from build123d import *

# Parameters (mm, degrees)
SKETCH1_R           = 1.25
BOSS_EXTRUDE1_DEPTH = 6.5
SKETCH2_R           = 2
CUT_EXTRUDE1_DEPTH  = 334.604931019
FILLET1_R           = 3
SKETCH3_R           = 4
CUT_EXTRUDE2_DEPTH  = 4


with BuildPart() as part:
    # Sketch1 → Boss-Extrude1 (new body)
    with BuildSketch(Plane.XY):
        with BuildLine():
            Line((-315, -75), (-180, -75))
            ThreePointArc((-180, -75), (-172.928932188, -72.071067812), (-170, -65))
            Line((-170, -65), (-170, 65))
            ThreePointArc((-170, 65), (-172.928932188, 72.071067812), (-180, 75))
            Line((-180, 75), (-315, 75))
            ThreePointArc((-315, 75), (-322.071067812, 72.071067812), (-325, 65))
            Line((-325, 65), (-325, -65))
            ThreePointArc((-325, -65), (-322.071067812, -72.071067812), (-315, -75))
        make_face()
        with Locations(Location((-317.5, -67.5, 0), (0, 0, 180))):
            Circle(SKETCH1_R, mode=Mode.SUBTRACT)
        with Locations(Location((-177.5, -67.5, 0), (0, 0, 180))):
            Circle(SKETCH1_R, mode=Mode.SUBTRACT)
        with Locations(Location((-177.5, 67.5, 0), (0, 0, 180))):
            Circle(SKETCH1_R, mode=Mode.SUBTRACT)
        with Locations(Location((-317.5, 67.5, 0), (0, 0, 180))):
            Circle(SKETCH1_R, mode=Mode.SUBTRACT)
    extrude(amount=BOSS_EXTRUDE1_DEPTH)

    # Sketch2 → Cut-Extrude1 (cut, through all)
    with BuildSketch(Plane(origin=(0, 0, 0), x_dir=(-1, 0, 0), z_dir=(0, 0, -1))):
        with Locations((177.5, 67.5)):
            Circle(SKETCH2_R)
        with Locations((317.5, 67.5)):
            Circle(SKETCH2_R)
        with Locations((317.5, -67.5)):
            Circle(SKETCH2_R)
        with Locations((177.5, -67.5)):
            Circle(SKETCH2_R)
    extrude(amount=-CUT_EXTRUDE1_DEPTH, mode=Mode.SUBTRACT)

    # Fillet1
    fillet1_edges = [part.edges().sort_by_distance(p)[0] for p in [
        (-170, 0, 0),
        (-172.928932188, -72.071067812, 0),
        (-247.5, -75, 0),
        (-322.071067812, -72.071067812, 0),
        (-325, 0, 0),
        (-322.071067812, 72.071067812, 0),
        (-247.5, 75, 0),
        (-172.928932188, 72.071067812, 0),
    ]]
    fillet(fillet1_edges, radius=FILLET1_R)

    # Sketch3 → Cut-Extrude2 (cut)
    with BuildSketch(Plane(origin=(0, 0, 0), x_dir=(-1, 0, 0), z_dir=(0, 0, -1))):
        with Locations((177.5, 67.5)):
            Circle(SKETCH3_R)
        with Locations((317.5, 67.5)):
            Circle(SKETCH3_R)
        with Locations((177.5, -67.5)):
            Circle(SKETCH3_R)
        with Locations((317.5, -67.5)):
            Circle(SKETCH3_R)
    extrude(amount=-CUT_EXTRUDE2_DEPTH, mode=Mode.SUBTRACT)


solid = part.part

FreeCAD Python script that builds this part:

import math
import FreeCAD as App
import Part
import Sketcher

V = App.Vector
Q = App.Units.Quantity


def edges_at(feature, points):
    """Names of the edges that pass closest to the given points."""
    edges = feature.Shape.Edges
    near = lambda p: min(range(len(edges)), key=lambda i: edges[i].distToShape(Part.Vertex(*p))[0])
    return sorted({f"Edge{near(p) + 1}" for p in points})

doc = App.newDocument("Part")
body = doc.addObject("PartDesign::Body", "Body")

# Sketch on XY plane
sketch1 = body.newObject("Sketcher::SketchObject", "Sketch")
sketch1.AttachmentSupport = (doc.getObject("XY_Plane"), [""])
sketch1.MapMode = "FlatFace"
sketch1.addGeometry(Part.LineSegment(V(-315, -75, 0), V(-180, -75, 0)), False)
sketch1.addGeometry(Part.ArcOfCircle(Part.Circle(V(-180, -65, 0), V(0, 0, 1), 10), math.radians(-90), math.radians(0)), False)
sketch1.addGeometry(Part.LineSegment(V(-170, -65, 0), V(-170, 65, 0)), False)
sketch1.addGeometry(Part.ArcOfCircle(Part.Circle(V(-180, 65, 0), V(0, 0, 1), 10), math.radians(0), math.radians(90)), False)
sketch1.addGeometry(Part.LineSegment(V(-180, 75, 0), V(-315, 75, 0)), False)
sketch1.addGeometry(Part.ArcOfCircle(Part.Circle(V(-315, 65, 0), V(0, 0, 1), 10), math.radians(90), math.radians(180)), False)
sketch1.addGeometry(Part.LineSegment(V(-325, 65, 0), V(-325, -65, 0)), False)
sketch1.addGeometry(Part.ArcOfCircle(Part.Circle(V(-315, -65, 0), V(0, 0, 1), 10), math.radians(180), math.radians(270)), False)
sketch1.addGeometry(Part.Circle(V(-317.5, -67.5, 0), V(0, 0, 1), 1.2), False)
sketch1.addGeometry(Part.Circle(V(-177.5, -67.5, 0), V(0, 0, 1), 1.2), False)
sketch1.addGeometry(Part.Circle(V(-317.5, 67.5, 0), V(0, 0, 1), 1.2), False)
sketch1.addGeometry(Part.Circle(V(-177.5, 67.5, 0), V(0, 0, 1), 1.2), False)
sketch1.addConstraint(Sketcher.Constraint("Tangent", 0, 2, 1, 1))
sketch1.addConstraint(Sketcher.Constraint("Tangent", 1, 2, 2, 1))
sketch1.addConstraint(Sketcher.Constraint("Tangent", 2, 2, 3, 1))
sketch1.addConstraint(Sketcher.Constraint("Tangent", 3, 2, 4, 1))
sketch1.addConstraint(Sketcher.Constraint("Tangent", 4, 2, 5, 1))
sketch1.addConstraint(Sketcher.Constraint("Tangent", 5, 2, 6, 1))
sketch1.addConstraint(Sketcher.Constraint("Tangent", 6, 2, 7, 1))
sketch1.addConstraint(Sketcher.Constraint("Tangent", 7, 2, 0, 1))
sketch1.addConstraint(Sketcher.Constraint("Horizontal", 0))
sketch1.addConstraint(Sketcher.Constraint("Vertical", 2))
sketch1.addConstraint(Sketcher.Constraint("Horizontal", 4))
sketch1.addConstraint(Sketcher.Constraint("Vertical", 6))
sketch1.addConstraint(Sketcher.Constraint("Equal", 1, 3))
sketch1.addConstraint(Sketcher.Constraint("Equal", 3, 5))
sketch1.addConstraint(Sketcher.Constraint("Equal", 5, 7))
sketch1.addConstraint(Sketcher.Constraint("Equal", 8, 9))
sketch1.addConstraint(Sketcher.Constraint("Equal", 9, 10))
sketch1.addConstraint(Sketcher.Constraint("Equal", 10, 11))
sketch1.addConstraint(Sketcher.Constraint("Symmetric", 8, 3, 10, 3, -1))
sketch1.addConstraint(Sketcher.Constraint("Symmetric", 9, 3, 11, 3, -1))
sketch1.addConstraint(Sketcher.Constraint("Horizontal", 8, 3, 9, 3))
sketch1.addConstraint(Sketcher.Constraint("Radius", 1, Q("10 mm")))
sketch1.addConstraint(Sketcher.Constraint("Diameter", 8, Q("2.5 mm")))
sketch1.addConstraint(Sketcher.Constraint("DistanceX", 0, 1, 0, 2, Q("135 mm")))
sketch1.addConstraint(Sketcher.Constraint("DistanceY", 2, 1, 2, 2, Q("130 mm")))
sketch1.addConstraint(Sketcher.Constraint("DistanceX", 1, 3, -1, 1, Q("180 mm")))
sketch1.addConstraint(Sketcher.Constraint("DistanceY", 1, 3, -1, 1, Q("65 mm")))
sketch1.addConstraint(Sketcher.Constraint("DistanceX", 8, 3, 9, 3, Q("140 mm")))
sketch1.addConstraint(Sketcher.Constraint("DistanceY", 8, 3, 10, 3, Q("135 mm")))
sketch1.addConstraint(Sketcher.Constraint("DistanceX", 8, 3, -1, 1, Q("317.5 mm")))
pad1 = body.newObject("PartDesign::Pad", "Pad")
pad1.Profile = sketch1
pad1.Length = 6.5

# Sketch on XY plane
sketch2 = body.newObject("Sketcher::SketchObject", "Sketch001")
sketch2.AttachmentSupport = (doc.getObject("XY_Plane"), [""])
sketch2.MapMode = "FlatFace"
sketch2.addGeometry(Part.Circle(V(-177.5, 67.5, 0), V(0, 0, 1), 2), False)
sketch2.addGeometry(Part.Circle(V(-317.5, 67.5, 0), V(0, 0, 1), 2), False)
sketch2.addGeometry(Part.Circle(V(-317.5, -67.5, 0), V(0, 0, 1), 2), False)
sketch2.addGeometry(Part.Circle(V(-177.5, -67.5, 0), V(0, 0, 1), 2), False)
sketch2.addConstraint(Sketcher.Constraint("Equal", 0, 1))
sketch2.addConstraint(Sketcher.Constraint("Equal", 1, 2))
sketch2.addConstraint(Sketcher.Constraint("Equal", 2, 3))
sketch2.addConstraint(Sketcher.Constraint("Symmetric", 1, 3, 2, 3, -1))
sketch2.addConstraint(Sketcher.Constraint("Symmetric", 0, 3, 3, 3, -1))
sketch2.addConstraint(Sketcher.Constraint("Horizontal", 0, 3, 1, 3))
sketch2.addConstraint(Sketcher.Constraint("Diameter", 0, Q("4 mm")))
sketch2.addConstraint(Sketcher.Constraint("DistanceX", 1, 3, 0, 3, Q("140 mm")))
sketch2.addConstraint(Sketcher.Constraint("DistanceY", 2, 3, 1, 3, Q("135 mm")))
sketch2.addConstraint(Sketcher.Constraint("DistanceX", 0, 3, -1, 1, Q("177.5 mm")))
pocket1 = body.newObject("PartDesign::Pocket", "Pocket")
pocket1.Profile = sketch2
pocket1.Type = "ThroughAll"
pocket1.Reversed = True
doc.recompute()

fillet = body.newObject("PartDesign::Fillet", "Fillet")
fillet.Base = (pocket1, edges_at(pocket1, [
    (-170, 0, 0),
    (-172.929, -72.071, 0),
    (-247.5, -75, 0),
    (-322.071, -72.071, 0),
    (-325, 0, 0),
    (-322.071, 72.071, 0),
    (-247.5, 75, 0),
    (-172.929, 72.071, 0),
]))
fillet.Radius = 3

# Sketch on XY plane
sketch3 = body.newObject("Sketcher::SketchObject", "Sketch002")
sketch3.AttachmentSupport = (doc.getObject("XY_Plane"), [""])
sketch3.MapMode = "FlatFace"
sketch3.addGeometry(Part.Circle(V(-177.5, 67.5, 0), V(0, 0, 1), 4), False)
sketch3.addGeometry(Part.Circle(V(-317.5, 67.5, 0), V(0, 0, 1), 4), False)
sketch3.addGeometry(Part.Circle(V(-177.5, -67.5, 0), V(0, 0, 1), 4), False)
sketch3.addGeometry(Part.Circle(V(-317.5, -67.5, 0), V(0, 0, 1), 4), False)
sketch3.addConstraint(Sketcher.Constraint("Equal", 0, 1))
sketch3.addConstraint(Sketcher.Constraint("Equal", 1, 2))
sketch3.addConstraint(Sketcher.Constraint("Equal", 2, 3))
sketch3.addConstraint(Sketcher.Constraint("Symmetric", 0, 3, 2, 3, -1))
sketch3.addConstraint(Sketcher.Constraint("Symmetric", 1, 3, 3, 3, -1))
sketch3.addConstraint(Sketcher.Constraint("Horizontal", 0, 3, 1, 3))
sketch3.addConstraint(Sketcher.Constraint("Diameter", 0, Q("8 mm")))
sketch3.addConstraint(Sketcher.Constraint("DistanceX", 1, 3, 0, 3, Q("140 mm")))
sketch3.addConstraint(Sketcher.Constraint("DistanceY", 2, 3, 0, 3, Q("135 mm")))
sketch3.addConstraint(Sketcher.Constraint("DistanceX", 0, 3, -1, 1, Q("177.5 mm")))
pocket2 = body.newObject("PartDesign::Pocket", "Pocket001")
pocket2.Profile = sketch3
pocket2.Length = 4
pocket2.Reversed = True

doc.recompute()
